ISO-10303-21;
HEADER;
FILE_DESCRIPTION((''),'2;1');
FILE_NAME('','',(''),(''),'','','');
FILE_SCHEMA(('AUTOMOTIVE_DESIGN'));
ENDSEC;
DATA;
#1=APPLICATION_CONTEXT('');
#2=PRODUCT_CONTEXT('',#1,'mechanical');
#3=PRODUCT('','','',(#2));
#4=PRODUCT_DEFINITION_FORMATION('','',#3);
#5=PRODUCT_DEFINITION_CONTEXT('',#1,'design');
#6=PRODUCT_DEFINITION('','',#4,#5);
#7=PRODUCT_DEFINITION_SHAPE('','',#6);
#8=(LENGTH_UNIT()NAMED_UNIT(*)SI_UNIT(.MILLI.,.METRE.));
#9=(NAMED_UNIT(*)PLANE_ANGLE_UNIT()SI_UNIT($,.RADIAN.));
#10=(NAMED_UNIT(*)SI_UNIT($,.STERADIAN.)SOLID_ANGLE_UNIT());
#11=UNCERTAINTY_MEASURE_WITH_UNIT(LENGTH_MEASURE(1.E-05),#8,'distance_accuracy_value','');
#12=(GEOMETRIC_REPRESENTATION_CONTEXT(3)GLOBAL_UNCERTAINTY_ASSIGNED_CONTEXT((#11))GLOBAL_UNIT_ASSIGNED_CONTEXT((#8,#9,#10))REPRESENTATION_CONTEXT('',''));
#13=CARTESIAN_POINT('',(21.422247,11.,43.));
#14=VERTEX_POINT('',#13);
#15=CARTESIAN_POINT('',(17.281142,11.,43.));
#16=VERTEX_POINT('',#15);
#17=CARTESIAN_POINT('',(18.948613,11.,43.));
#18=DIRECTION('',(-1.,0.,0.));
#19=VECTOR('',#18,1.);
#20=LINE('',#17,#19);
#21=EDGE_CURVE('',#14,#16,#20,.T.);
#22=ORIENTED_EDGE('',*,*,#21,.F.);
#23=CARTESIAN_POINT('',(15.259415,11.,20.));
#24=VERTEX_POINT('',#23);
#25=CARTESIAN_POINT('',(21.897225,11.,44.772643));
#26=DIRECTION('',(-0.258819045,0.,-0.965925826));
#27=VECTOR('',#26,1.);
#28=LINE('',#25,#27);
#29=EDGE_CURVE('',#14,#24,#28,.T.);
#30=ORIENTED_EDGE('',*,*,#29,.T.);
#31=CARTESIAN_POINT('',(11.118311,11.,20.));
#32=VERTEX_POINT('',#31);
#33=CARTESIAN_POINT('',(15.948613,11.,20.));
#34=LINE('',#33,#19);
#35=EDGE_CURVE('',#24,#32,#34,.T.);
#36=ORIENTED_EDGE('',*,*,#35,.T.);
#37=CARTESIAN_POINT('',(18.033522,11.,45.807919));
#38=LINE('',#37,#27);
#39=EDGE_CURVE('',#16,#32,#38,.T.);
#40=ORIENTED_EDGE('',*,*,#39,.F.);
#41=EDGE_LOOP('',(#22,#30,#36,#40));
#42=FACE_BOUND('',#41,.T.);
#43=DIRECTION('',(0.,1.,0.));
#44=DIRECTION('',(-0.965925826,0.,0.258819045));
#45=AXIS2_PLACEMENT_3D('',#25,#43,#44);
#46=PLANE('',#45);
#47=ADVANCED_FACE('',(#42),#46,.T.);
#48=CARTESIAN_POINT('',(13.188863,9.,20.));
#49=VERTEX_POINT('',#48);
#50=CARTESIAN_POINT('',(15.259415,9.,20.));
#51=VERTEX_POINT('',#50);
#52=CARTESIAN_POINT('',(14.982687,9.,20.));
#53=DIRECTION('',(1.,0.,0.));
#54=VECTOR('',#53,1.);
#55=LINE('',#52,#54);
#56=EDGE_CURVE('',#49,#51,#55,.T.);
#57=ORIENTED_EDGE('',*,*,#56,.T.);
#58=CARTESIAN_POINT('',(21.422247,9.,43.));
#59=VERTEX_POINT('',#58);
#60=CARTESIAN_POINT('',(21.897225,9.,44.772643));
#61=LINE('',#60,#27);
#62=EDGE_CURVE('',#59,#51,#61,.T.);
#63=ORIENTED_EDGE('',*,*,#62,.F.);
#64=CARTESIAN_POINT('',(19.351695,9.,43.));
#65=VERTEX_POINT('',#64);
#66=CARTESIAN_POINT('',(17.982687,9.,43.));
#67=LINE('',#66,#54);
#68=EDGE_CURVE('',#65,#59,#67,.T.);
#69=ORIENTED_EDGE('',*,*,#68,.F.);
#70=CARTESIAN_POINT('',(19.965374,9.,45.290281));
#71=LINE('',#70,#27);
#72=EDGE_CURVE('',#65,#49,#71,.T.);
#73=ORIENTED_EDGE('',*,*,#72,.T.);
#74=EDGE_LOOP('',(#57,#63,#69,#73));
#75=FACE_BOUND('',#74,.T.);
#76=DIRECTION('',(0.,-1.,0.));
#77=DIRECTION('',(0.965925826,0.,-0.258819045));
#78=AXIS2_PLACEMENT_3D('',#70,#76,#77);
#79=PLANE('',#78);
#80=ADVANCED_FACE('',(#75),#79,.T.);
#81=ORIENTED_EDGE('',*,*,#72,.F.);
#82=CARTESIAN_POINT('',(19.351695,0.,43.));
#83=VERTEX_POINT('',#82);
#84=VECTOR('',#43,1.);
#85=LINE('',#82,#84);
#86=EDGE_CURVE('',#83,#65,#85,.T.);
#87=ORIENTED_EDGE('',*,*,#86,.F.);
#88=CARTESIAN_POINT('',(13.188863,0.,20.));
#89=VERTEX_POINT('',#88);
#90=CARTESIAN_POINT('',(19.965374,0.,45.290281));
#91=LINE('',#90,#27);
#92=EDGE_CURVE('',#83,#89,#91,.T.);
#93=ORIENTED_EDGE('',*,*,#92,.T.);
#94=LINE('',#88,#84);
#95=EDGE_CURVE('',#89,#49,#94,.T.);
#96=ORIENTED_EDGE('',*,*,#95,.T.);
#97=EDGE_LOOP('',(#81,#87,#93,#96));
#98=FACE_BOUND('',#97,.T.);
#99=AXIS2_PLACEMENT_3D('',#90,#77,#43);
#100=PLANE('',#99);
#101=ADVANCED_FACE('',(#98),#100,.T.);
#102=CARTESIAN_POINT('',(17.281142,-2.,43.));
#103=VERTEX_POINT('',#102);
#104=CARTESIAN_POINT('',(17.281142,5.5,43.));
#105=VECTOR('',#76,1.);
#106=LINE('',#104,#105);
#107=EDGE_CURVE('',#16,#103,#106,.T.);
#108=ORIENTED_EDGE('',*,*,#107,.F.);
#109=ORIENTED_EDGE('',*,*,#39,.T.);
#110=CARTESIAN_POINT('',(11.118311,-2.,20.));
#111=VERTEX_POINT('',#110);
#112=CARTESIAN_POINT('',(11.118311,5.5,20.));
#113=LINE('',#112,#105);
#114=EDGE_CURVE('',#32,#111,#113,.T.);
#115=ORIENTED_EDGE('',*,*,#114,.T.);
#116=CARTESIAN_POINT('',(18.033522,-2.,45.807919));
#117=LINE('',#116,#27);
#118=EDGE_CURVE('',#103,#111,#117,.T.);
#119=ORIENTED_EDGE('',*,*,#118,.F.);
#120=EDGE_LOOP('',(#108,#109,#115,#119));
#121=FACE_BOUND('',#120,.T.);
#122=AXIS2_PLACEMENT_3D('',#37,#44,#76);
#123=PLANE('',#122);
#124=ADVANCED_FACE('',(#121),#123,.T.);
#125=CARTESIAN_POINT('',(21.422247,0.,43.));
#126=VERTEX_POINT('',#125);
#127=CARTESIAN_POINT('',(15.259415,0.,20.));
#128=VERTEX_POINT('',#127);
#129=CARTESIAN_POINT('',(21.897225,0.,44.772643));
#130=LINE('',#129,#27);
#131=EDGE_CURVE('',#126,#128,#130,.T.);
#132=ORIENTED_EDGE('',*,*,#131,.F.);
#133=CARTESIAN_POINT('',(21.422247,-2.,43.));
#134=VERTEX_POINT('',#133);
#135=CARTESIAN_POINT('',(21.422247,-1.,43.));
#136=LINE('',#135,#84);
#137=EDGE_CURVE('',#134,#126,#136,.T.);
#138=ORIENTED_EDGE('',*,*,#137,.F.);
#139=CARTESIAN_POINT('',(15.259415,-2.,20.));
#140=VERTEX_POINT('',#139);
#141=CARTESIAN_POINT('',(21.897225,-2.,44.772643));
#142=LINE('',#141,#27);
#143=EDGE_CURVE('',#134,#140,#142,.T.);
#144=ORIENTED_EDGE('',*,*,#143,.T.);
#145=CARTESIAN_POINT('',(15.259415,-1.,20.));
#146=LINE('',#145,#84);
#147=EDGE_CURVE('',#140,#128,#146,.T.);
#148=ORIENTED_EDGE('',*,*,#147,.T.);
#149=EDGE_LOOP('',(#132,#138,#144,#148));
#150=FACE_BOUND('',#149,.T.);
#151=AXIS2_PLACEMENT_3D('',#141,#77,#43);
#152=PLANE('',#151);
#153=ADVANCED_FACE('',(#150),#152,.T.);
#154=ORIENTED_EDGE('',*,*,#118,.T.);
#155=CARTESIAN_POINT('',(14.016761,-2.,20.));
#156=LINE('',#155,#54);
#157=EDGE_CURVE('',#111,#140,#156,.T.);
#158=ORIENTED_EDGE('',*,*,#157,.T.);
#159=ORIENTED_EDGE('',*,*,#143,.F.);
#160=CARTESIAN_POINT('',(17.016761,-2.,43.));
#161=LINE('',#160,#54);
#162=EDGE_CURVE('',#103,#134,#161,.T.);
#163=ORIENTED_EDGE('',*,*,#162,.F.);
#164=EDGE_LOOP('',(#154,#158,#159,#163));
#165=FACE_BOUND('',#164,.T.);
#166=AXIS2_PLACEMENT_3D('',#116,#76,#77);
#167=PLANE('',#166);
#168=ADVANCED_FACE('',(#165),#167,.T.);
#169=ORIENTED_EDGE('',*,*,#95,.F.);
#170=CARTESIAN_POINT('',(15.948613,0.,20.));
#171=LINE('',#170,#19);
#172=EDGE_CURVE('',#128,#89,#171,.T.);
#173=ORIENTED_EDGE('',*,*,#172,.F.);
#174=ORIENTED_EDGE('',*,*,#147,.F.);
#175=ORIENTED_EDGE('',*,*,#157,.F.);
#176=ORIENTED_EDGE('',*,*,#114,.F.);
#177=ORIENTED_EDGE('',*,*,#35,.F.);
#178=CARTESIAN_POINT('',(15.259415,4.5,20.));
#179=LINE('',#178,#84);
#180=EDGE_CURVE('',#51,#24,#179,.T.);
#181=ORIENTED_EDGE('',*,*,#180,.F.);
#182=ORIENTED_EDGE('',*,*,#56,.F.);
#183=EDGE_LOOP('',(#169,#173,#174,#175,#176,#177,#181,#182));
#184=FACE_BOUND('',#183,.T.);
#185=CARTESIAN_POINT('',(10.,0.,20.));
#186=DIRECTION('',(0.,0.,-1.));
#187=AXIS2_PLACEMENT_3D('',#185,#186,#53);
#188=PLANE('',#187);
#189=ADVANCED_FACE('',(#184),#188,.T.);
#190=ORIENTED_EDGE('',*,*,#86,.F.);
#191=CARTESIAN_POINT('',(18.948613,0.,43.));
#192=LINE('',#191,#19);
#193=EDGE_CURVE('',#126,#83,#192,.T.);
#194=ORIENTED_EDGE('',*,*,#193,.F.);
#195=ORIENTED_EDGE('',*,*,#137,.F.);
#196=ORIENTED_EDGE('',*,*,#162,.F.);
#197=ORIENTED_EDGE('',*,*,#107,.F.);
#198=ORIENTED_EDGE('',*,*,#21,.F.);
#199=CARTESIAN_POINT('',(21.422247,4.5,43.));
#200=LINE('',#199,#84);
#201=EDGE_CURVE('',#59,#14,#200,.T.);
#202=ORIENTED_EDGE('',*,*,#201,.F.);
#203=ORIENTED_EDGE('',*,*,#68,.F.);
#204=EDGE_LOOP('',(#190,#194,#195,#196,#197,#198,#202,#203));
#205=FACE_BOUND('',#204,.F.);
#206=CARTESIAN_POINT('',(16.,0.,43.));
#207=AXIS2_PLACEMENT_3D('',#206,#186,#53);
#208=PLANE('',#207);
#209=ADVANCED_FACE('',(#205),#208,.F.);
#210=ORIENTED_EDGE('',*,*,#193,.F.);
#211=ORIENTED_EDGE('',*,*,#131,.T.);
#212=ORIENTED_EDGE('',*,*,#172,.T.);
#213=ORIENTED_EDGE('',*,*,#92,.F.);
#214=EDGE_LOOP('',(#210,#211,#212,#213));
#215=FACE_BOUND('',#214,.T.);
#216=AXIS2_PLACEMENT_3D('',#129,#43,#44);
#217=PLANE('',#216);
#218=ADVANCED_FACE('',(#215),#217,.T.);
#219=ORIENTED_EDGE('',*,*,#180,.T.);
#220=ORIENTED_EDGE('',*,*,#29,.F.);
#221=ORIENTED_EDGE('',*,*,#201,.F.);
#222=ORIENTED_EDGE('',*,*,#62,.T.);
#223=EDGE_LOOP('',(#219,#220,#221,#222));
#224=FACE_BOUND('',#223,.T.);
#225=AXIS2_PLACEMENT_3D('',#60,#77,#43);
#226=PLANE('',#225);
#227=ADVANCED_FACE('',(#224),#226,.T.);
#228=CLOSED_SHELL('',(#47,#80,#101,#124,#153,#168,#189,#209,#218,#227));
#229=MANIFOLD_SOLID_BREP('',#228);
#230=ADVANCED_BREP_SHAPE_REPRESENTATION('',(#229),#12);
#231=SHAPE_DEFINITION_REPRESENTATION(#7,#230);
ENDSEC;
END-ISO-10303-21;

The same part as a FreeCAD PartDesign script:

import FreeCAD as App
import Part
import Sketcher

V = App.Vector
Q = App.Units.Quantity


def add_polygon(sketch, points):
    """Adds a closed chain of lines whose ends are joined by coincident constraints."""
    first, n = sketch.GeometryCount, len(points)
    for a, b in zip(points, points[1:] + points[:1]):
        sketch.addGeometry(Part.LineSegment(App.Vector(*a, 0), App.Vector(*b, 0)), False)
    for i in range(n):
        sketch.addConstraint(Sketcher.Constraint("Coincident", first + i, 2, first + (i + 1) % n, 1))

doc = App.newDocument("Part")
body = doc.addObject("PartDesign::Body", "Body")
body.AllowCompound = True

sketch1 = body.newObject("Sketcher::SketchObject", "Sketch")
sketch1.AttachmentSupport = (doc.getObject("XZ_Plane"), [""])
sketch1.MapMode = "FlatFace"
add_polygon(sketch1, [(10, 20), (10, 18), (17, 18), (17, 20)])
add_polygon(sketch1, [(16, 47), (16, 43), (24, 43), (24, 47)])
sketch1.addConstraint([
    Sketcher.Constraint("Vertical", 0),
    Sketcher.Constraint("Horizontal", 1),
    Sketcher.Constraint("Vertical", 2),
    Sketcher.Constraint("Horizontal", 3),
    Sketcher.Constraint("Vertical", 4),
    Sketcher.Constraint("Horizontal", 5),
    Sketcher.Constraint("Vertical", 6),
    Sketcher.Constraint("Horizontal", 7),
    Sketcher.Constraint("DistanceX", 1, 1, 1, 2, Q("7 mm")),
    Sketcher.Constraint("DistanceX", 5, 1, 5, 2, Q("8 mm")),
    Sketcher.Constraint("DistanceY", 0, 2, 0, 1, Q("2 mm")),
    Sketcher.Constraint("DistanceY", 4, 2, 4, 1, Q("4 mm")),
    Sketcher.Constraint("DistanceX", -1, 1, 0, 2, Q("10 mm")),
    Sketcher.Constraint("DistanceY", -1, 1, 0, 2, Q("18 mm")),
    Sketcher.Constraint("DistanceX", -1, 1, 4, 2, Q("16 mm")),
    Sketcher.Constraint("DistanceY", -1, 1, 4, 2, Q("43 mm")),
])
pad1 = body.newObject("PartDesign::Pad", "Pad")
pad1.Profile = sketch1
pad1.Type = "TwoLengths"
pad1.Length = 5
pad1.Length2 = 14
body2 = doc.addObject("PartDesign::Body", "Body001")

sketch2 = body2.newObject("Sketcher::SketchObject", "Sketch001")
sketch2.AttachmentSupport = (doc.getObject("XY_Plane001"), [""])
sketch2.MapMode = "FlatFace"
sketch2.AttachmentOffset = App.Placement(V(0, 0, 45), App.Rotation())
add_polygon(sketch2, [(20, 9), (22, 9), (22, 11), (18, 11), (18, -2), (22, -2), (22, 0), (20, 0)])
sketch2.addConstraint([
    Sketcher.Constraint("Horizontal", 0),
    Sketcher.Constraint("Vertical", 1),
    Sketcher.Constraint("Horizontal", 2),
    Sketcher.Constraint("Vertical", 3),
    Sketcher.Constraint("Horizontal", 4),
    Sketcher.Constraint("Vertical", 5),
    Sketcher.Constraint("Horizontal", 6),
    Sketcher.Constraint("Vertical", 7),
    Sketcher.Constraint("PointOnObject", 5, 2, -1),
    Sketcher.Constraint("Vertical", 1, 2, 4, 2),
    Sketcher.Constraint("Equal", 6, 1),
    Sketcher.Constraint("Equal", 1, 5),
    Sketcher.Constraint("DistanceX", 0, 1, 0, 2, Q("2 mm")),
    Sketcher.Constraint("DistanceX", 2, 2, 2, 1, Q("4 mm")),
    Sketcher.Constraint("DistanceY", 3, 2, 3, 1, Q("13 mm")),
    Sketcher.Constraint("DistanceX", -1, 1, 0, 2, Q("22 mm")),
])
pad2 = body2.newObject("PartDesign::Pad", "Pad001")
pad2.Profile = sketch2
pad2.Length = 27
pad2.Reversed = True
body3 = doc.addObject("PartDesign::Body", "Body002")
doc.recompute()

body2.Placement = App.Placement(V(-11, 0, 7), App.Rotation(V(0, 1, 0), 15))
boolean = body3.newObject("PartDesign::Boolean", "Boolean")
boolean.Type = "Fuse"
boolean.addObjects([body2])
doc.recompute()

boolean2 = body3.newObject("PartDesign::Boolean", "Boolean001")
boolean2.Type = "Cut"
boolean2.addObjects([body])

doc.recompute()
